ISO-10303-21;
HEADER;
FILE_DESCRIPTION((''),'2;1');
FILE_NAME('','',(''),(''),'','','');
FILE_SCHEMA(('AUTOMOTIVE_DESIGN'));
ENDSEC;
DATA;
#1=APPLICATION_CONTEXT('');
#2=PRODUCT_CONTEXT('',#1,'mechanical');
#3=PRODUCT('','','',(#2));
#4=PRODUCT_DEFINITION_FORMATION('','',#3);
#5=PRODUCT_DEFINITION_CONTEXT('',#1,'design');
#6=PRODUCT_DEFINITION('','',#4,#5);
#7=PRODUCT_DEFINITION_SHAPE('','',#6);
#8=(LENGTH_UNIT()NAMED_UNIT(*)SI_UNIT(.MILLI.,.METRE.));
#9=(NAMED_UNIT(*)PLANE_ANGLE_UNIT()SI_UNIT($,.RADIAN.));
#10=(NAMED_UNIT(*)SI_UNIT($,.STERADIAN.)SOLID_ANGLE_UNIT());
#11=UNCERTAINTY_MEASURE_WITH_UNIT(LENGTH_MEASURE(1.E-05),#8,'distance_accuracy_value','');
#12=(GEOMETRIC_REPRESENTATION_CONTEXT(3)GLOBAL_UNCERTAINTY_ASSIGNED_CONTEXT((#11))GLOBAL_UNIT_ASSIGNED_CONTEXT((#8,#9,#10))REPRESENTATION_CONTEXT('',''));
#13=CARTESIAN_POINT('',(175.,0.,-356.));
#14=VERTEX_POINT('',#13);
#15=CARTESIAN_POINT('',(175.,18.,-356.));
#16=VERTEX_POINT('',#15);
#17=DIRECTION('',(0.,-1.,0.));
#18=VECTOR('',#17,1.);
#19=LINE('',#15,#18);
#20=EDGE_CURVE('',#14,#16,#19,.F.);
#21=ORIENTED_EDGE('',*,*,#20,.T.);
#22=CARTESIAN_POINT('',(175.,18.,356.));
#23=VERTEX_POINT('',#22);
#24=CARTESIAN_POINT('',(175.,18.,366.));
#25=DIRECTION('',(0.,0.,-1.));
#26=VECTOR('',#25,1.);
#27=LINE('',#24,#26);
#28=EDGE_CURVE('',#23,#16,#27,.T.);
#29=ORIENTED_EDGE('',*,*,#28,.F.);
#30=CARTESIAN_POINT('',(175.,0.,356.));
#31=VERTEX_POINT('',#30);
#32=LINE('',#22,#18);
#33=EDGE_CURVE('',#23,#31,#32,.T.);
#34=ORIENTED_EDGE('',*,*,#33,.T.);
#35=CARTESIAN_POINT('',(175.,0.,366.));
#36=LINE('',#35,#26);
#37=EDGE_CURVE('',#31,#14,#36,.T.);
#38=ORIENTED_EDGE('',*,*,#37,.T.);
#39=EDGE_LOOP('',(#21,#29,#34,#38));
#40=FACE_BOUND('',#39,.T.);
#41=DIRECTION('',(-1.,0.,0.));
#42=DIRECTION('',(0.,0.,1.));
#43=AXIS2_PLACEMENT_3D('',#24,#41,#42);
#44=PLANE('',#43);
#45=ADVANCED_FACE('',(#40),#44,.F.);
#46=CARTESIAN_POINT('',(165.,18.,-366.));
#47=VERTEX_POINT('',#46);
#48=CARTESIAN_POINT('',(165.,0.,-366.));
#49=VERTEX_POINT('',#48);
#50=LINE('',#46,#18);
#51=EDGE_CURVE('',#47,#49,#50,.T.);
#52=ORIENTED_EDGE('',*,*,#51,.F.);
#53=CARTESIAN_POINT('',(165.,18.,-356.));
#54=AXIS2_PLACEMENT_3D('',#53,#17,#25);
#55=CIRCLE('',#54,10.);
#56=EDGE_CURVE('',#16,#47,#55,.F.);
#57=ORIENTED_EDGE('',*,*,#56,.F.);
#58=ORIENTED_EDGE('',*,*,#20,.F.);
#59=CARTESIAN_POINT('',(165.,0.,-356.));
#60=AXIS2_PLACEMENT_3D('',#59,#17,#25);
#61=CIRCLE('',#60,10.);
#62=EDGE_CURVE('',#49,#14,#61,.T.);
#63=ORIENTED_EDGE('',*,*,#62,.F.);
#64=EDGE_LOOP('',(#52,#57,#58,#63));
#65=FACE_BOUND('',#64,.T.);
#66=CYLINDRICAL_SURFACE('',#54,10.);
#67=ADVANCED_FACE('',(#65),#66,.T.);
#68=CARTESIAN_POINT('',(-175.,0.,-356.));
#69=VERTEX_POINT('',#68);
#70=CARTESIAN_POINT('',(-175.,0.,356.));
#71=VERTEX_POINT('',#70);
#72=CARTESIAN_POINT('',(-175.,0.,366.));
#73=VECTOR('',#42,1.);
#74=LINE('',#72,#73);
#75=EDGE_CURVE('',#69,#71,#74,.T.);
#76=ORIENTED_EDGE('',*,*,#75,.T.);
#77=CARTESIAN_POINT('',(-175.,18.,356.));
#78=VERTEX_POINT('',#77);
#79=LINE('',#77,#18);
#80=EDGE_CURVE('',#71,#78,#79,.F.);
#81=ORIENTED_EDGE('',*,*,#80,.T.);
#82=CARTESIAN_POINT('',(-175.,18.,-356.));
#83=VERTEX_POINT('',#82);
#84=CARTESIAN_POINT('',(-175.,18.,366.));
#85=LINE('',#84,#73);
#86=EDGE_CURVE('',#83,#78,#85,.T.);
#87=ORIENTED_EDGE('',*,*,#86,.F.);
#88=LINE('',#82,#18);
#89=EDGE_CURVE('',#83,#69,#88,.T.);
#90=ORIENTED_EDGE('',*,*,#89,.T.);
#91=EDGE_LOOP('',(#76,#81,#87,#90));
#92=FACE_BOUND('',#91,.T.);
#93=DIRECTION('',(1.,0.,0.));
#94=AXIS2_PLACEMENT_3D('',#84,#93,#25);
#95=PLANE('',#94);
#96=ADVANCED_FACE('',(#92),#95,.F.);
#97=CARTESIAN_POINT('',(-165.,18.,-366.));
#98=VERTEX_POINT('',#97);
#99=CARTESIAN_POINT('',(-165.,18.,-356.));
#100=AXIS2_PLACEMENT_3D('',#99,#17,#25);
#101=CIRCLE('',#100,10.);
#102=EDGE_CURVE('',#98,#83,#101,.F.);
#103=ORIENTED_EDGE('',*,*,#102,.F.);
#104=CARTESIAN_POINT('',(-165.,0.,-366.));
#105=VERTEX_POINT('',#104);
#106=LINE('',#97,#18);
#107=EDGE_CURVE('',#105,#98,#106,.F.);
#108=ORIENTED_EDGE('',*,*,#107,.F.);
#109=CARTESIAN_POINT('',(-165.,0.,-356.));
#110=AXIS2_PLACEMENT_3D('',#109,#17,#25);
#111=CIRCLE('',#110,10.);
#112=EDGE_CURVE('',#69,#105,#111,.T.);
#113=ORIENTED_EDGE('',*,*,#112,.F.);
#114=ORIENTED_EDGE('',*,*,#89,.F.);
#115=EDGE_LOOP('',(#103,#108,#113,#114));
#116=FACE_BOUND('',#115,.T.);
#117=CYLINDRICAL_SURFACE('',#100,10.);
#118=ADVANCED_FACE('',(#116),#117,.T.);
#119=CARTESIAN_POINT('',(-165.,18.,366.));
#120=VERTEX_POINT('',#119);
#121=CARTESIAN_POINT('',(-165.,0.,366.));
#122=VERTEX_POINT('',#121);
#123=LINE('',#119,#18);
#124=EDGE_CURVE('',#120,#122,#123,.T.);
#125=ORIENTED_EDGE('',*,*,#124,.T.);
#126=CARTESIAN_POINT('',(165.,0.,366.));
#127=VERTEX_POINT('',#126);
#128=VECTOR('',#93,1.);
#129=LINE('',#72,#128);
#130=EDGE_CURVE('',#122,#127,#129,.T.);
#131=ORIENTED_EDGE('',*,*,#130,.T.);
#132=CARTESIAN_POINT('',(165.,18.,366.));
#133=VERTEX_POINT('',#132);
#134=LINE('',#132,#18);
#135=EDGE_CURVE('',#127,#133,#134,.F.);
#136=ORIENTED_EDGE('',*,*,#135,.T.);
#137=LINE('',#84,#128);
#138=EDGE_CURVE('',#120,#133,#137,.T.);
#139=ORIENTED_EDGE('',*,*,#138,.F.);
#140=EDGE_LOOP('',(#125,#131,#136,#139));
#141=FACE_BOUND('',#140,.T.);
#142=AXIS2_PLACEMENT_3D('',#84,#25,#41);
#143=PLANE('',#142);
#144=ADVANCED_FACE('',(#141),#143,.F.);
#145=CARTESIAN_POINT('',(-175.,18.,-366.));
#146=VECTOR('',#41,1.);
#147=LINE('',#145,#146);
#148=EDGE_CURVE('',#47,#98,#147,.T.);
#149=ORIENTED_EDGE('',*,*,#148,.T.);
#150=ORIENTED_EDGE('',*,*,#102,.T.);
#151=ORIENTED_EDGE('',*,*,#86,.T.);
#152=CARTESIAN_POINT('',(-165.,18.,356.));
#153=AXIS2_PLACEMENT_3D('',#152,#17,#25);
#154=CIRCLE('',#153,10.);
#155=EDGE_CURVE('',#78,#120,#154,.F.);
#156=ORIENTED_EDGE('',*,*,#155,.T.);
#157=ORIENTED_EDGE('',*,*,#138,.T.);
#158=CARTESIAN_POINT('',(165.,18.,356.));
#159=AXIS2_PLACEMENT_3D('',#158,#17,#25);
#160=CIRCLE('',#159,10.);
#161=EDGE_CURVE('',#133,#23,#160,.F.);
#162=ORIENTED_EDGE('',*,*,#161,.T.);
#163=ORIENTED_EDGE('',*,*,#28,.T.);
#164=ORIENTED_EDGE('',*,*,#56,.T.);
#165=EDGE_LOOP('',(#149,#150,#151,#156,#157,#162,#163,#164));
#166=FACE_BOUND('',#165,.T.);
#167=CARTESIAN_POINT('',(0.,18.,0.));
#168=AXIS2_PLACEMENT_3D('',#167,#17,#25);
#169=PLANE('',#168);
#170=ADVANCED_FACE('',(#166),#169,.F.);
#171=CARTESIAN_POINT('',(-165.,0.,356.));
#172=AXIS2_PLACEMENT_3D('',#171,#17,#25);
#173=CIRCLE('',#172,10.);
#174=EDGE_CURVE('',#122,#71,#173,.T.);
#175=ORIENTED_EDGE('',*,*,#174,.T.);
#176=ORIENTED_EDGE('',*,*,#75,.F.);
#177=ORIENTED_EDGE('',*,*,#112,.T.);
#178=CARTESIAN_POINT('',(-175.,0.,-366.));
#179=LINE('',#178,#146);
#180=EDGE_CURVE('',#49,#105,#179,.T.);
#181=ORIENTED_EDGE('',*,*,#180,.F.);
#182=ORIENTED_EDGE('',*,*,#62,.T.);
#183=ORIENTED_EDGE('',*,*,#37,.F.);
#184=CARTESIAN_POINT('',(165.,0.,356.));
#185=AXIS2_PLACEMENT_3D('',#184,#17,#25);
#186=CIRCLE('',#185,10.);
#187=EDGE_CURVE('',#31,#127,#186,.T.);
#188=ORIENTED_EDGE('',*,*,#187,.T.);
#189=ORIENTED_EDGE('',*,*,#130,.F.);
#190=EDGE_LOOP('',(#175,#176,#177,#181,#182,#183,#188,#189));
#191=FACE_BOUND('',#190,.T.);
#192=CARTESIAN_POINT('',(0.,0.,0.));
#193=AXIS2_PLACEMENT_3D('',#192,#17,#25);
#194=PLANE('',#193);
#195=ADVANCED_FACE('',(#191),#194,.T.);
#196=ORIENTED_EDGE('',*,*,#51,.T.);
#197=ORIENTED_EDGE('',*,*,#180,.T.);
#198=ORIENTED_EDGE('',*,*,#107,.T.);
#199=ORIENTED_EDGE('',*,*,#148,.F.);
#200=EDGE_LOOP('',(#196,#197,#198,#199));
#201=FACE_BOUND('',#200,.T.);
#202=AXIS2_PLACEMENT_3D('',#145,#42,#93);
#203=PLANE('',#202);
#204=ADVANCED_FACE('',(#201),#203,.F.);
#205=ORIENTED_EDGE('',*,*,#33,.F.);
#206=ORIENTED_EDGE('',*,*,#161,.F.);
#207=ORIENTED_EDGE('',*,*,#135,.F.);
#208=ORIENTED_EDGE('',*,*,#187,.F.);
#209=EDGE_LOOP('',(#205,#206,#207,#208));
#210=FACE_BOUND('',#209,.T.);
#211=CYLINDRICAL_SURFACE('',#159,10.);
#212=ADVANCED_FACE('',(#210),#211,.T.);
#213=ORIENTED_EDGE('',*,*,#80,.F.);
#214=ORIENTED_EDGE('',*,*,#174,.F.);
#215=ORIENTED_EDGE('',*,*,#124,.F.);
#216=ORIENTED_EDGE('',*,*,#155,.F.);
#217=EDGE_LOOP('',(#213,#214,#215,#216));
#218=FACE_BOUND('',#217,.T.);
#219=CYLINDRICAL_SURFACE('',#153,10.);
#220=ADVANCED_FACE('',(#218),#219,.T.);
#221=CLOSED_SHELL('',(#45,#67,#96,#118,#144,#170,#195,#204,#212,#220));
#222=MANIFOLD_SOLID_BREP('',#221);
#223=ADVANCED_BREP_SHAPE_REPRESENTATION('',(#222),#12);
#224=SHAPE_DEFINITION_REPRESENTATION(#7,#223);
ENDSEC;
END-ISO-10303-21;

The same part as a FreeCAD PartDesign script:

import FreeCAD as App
import Part
import Sketcher
Q = App.Units.Quantity


def edges_at(feature, points):
    """Names of the edges that pass closest to the given points."""
    edges = feature.Shape.Edges
    near = lambda p: min(range(len(edges)), key=lambda i: edges[i].distToShape(Part.Vertex(*p))[0])
    return sorted({f"Edge{near(p) + 1}" for p in points})

doc = App.newDocument("Part")
params = doc.addObject("Spreadsheet::Sheet", "Params")
for row, (alias, value) in enumerate([
    ("sketch1_width", "350 mm"),
    ("sketch1_height", "732 mm"),
    ("pad1_length", "18 mm"),
    ("fillet_radius", "10 mm"),
], start=1):
    params.set(f"A{row}", alias)
    params.set(f"B{row}", "=" + value)
    params.setAlias(f"B{row}", alias)

body = doc.addObject("PartDesign::Body", "Body")

sketch1 = body.newObject("Sketcher::SketchObject", "Sketch")
sketch1.AttachmentSupport = (doc.getObject("XZ_Plane"), [""])
sketch1.MapMode = "FlatFace"
sketch1.addGeometry([
    Part.LineSegment(App.Vector(-175, -366, 0), App.Vector(-175, 366, 0)),
    Part.LineSegment(App.Vector(-175, 366, 0), App.Vector(175, 366, 0)),
    Part.LineSegment(App.Vector(175, 366, 0), App.Vector(175, -366, 0)),
    Part.LineSegment(App.Vector(175, -366, 0), App.Vector(-175, -366, 0)),
], False)
sketch1.addConstraint([
    Sketcher.Constraint("Coincident", 0, 2, 1, 1),
    Sketcher.Constraint("Coincident", 1, 2, 2, 1),
    Sketcher.Constraint("Coincident", 2, 2, 3, 1),
    Sketcher.Constraint("Coincident", 3, 2, 0, 1),
    Sketcher.Constraint("Vertical", 0),
    Sketcher.Constraint("Horizontal", 1),
    Sketcher.Constraint("Vertical", 2),
    Sketcher.Constraint("Horizontal", 3),
    Sketcher.Constraint("Symmetric", 0, 2, 2, 2, -1, 1),
    Sketcher.Constraint("DistanceX", 1, 1, 1, 2, Q("350 mm")),
    Sketcher.Constraint("DistanceY", 0, 1, 0, 2, Q("732 mm")),
])
sketch1.setExpression("Constraints[9]", "Params.sketch1_width")
sketch1.setExpression("Constraints[10]", "Params.sketch1_height")
pad1 = body.newObject("PartDesign::Pad", "Pad")
pad1.Profile = sketch1
pad1.setExpression("Length", "Params.pad1_length")
pad1.Reversed = True
doc.recompute()

fillet = body.newObject("PartDesign::Fillet", "Fillet")
fillet.Base = (pad1, edges_at(pad1, [
    (-175, 9, -366),
    (175, 9, -366),
    (175, 9, 366),
    (-175, 9, 366),
]))
fillet.setExpression("Radius", "Params.fillet_radius")

doc.recompute()
